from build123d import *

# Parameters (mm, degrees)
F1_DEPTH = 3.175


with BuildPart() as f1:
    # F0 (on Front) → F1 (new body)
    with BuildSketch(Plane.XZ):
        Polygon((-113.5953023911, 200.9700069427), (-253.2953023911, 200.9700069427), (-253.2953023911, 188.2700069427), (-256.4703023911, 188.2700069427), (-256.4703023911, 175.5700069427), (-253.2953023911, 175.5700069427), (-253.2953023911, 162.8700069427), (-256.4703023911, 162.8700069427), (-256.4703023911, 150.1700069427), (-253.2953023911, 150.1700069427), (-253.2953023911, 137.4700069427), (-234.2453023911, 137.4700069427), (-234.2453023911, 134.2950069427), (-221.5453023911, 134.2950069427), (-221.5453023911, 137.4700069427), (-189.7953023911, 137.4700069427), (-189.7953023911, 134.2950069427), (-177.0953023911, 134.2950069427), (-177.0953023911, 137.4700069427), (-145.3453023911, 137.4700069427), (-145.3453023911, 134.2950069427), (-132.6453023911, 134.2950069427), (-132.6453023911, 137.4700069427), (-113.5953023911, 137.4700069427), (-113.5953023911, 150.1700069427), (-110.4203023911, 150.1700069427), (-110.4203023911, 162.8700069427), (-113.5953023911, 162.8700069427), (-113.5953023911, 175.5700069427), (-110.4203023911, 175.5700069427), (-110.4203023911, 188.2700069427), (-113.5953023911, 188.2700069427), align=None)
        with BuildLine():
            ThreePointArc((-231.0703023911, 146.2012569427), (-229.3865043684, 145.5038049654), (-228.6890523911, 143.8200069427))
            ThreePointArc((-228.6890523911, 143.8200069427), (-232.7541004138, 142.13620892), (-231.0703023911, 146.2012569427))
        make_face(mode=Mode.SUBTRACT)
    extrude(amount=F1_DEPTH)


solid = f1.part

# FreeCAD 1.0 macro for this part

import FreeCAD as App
import Part
import Sketcher

V = App.Vector
Q = App.Units.Quantity

doc = App.newDocument("Part")
body = doc.addObject("PartDesign::Body", "Body")

# Sketch on XZ plane
sketch1 = body.newObject("Sketcher::SketchObject", "Sketch")
sketch1.AttachmentSupport = (doc.getObject("XZ_Plane"), [""])
sketch1.MapMode = "FlatFace"
sketch1.addGeometry([
    Part.LineSegment(V(-113.595302, 200.970007, 0), V(-253.295302, 200.970007, 0)),  # 0
    Part.LineSegment(V(-253.295302, 200.970007, 0), V(-253.295302, 188.270007, 0)),  # 1
    Part.LineSegment(V(-253.295302, 188.270007, 0), V(-256.470302, 188.270007, 0)),  # 2
    Part.LineSegment(V(-256.470302, 188.270007, 0), V(-256.470302, 175.570007, 0)),  # 3
    Part.LineSegment(V(-256.470302, 175.570007, 0), V(-253.295302, 175.570007, 0)),  # 4
    Part.LineSegment(V(-253.295302, 175.570007, 0), V(-253.295302, 162.870007, 0)),  # 5
    Part.LineSegment(V(-253.295302, 162.870007, 0), V(-256.470302, 162.870007, 0)),  # 6
    Part.LineSegment(V(-256.470302, 162.870007, 0), V(-256.470302, 150.170007, 0)),  # 7
    Part.LineSegment(V(-256.470302, 150.170007, 0), V(-253.295302, 150.170007, 0)),  # 8
    Part.LineSegment(V(-253.295302, 150.170007, 0), V(-253.295302, 137.470007, 0)),  # 9
    Part.LineSegment(V(-253.295302, 137.470007, 0), V(-234.245302, 137.470007, 0)),  # 10
    Part.LineSegment(V(-234.245302, 137.470007, 0), V(-234.245302, 134.295007, 0)),  # 11
    Part.LineSegment(V(-234.245302, 134.295007, 0), V(-221.545302, 134.295007, 0)),  # 12
    Part.LineSegment(V(-221.545302, 134.295007, 0), V(-221.545302, 137.470007, 0)),  # 13
    Part.LineSegment(V(-221.545302, 137.470007, 0), V(-189.795302, 137.470007, 0)),  # 14
    Part.LineSegment(V(-189.795302, 137.470007, 0), V(-189.795302, 134.295007, 0)),  # 15
    Part.LineSegment(V(-189.795302, 134.295007, 0), V(-177.095302, 134.295007, 0)),  # 16
    Part.LineSegment(V(-177.095302, 134.295007, 0), V(-177.095302, 137.470007, 0)),  # 17
    Part.LineSegment(V(-177.095302, 137.470007, 0), V(-145.345302, 137.470007, 0)),  # 18
    Part.LineSegment(V(-145.345302, 137.470007, 0), V(-145.345302, 134.295007, 0)),  # 19
    Part.LineSegment(V(-145.345302, 134.295007, 0), V(-132.645302, 134.295007, 0)),  # 20
    Part.LineSegment(V(-132.645302, 134.295007, 0), V(-132.645302, 137.470007, 0)),  # 21
    Part.LineSegment(V(-132.645302, 137.470007, 0), V(-113.595302, 137.470007, 0)),  # 22
    Part.LineSegment(V(-113.595302, 137.470007, 0), V(-113.595302, 150.170007, 0)),  # 23
    Part.LineSegment(V(-113.595302, 150.170007, 0), V(-110.420302, 150.170007, 0)),  # 24
    Part.LineSegment(V(-110.420302, 150.170007, 0), V(-110.420302, 162.870007, 0)),  # 25
    Part.LineSegment(V(-110.420302, 162.870007, 0), V(-113.595302, 162.870007, 0)),  # 26
    Part.LineSegment(V(-113.595302, 162.870007, 0), V(-113.595302, 175.570007, 0)),  # 27
    Part.LineSegment(V(-113.595302, 175.570007, 0), V(-110.420302, 175.570007, 0)),  # 28
    Part.LineSegment(V(-110.420302, 175.570007, 0), V(-110.420302, 188.270007, 0)),  # 29
    Part.LineSegment(V(-110.420302, 188.270007, 0), V(-113.595302, 188.270007, 0)),  # 30
    Part.LineSegment(V(-113.595302, 188.270007, 0), V(-113.595302, 200.970007, 0)),  # 31
    Part.Circle(V(-231.070302, 143.820007, 0), V(0, 0, 1), 2.38125),  # 32
], False)
sketch1.addConstraint([
    Sketcher.Constraint("Coincident", 0, 2, 1, 1),
    Sketcher.Constraint("Coincident", 1, 2, 2, 1),
    Sketcher.Constraint("Coincident", 2, 2, 3, 1),
    Sketcher.Constraint("Coincident", 3, 2, 4, 1),
    Sketcher.Constraint("Coincident", 4, 2, 5, 1),
    Sketcher.Constraint("Coincident", 5, 2, 6, 1),
    Sketcher.Constraint("Coincident", 6, 2, 7, 1),
    Sketcher.Constraint("Coincident", 7, 2, 8, 1),
    Sketcher.Constraint("Coincident", 8, 2, 9, 1),
    Sketcher.Constraint("Coincident", 9, 2, 10, 1),
    Sketcher.Constraint("Coincident", 10, 2, 11, 1),
    Sketcher.Constraint("Coincident", 11, 2, 12, 1),
    Sketcher.Constraint("Coincident", 12, 2, 13, 1),
    Sketcher.Constraint("Coincident", 13, 2, 14, 1),
    Sketcher.Constraint("Coincident", 14, 2, 15, 1),
    Sketcher.Constraint("Coincident", 15, 2, 16, 1),
    Sketcher.Constraint("Coincident", 16, 2, 17, 1),
    Sketcher.Constraint("Coincident", 17, 2, 18, 1),
    Sketcher.Constraint("Coincident", 18, 2, 19, 1),
    Sketcher.Constraint("Coincident", 19, 2, 20, 1),
    Sketcher.Constraint("Coincident", 20, 2, 21, 1),
    Sketcher.Constraint("Coincident", 21, 2, 22, 1),
    Sketcher.Constraint("Coincident", 22, 2, 23, 1),
    Sketcher.Constraint("Coincident", 23, 2, 24, 1),
    Sketcher.Constraint("Coincident", 24, 2, 25, 1),
    Sketcher.Constraint("Coincident", 25, 2, 26, 1),
    Sketcher.Constraint("Coincident", 26, 2, 27, 1),
    Sketcher.Constraint("Coincident", 27, 2, 28, 1),
    Sketcher.Constraint("Coincident", 28, 2, 29, 1),
    Sketcher.Constraint("Coincident", 29, 2, 30, 1),
    Sketcher.Constraint("Coincident", 30, 2, 31, 1),
    Sketcher.Constraint("Coincident", 31, 2, 0, 1),
    Sketcher.Constraint("Horizontal", 0),
    Sketcher.Constraint("Vertical", 1),
    Sketcher.Constraint("Horizontal", 2),
    Sketcher.Constraint("Vertical", 3),
    Sketcher.Constraint("Horizontal", 4),
    Sketcher.Constraint("Vertical", 5),
    Sketcher.Constraint("Horizontal", 6),
    Sketcher.Constraint("Vertical", 7),
    Sketcher.Constraint("Horizontal", 8),
    Sketcher.Constraint("Vertical", 9),
    Sketcher.Constraint("Horizontal", 10),
    Sketcher.Constraint("Vertical", 11),
    Sketcher.Constraint("Horizontal", 12),
    Sketcher.Constraint("Vertical", 13),
    Sketcher.Constraint("Horizontal", 14),
    Sketcher.Constraint("Vertical", 15),
    Sketcher.Constraint("Horizontal", 16),
    Sketcher.Constraint("Vertical", 17),
    Sketcher.Constraint("Horizontal", 18),
    Sketcher.Constraint("Vertical", 19),
    Sketcher.Constraint("Horizontal", 20),
    Sketcher.Constraint("Vertical", 21),
    Sketcher.Constraint("Horizontal", 22),
    Sketcher.Constraint("Vertical", 23),
    Sketcher.Constraint("Horizontal", 24),
    Sketcher.Constraint("Vertical", 25),
    Sketcher.Constraint("Horizontal", 26),
    Sketcher.Constraint("Vertical", 27),
    Sketcher.Constraint("Horizontal", 28),
    Sketcher.Constraint("Vertical", 29),
    Sketcher.Constraint("Horizontal", 30),
    Sketcher.Constraint("Vertical", 31),
    Sketcher.Constraint("Horizontal", 10, 2, 13, 2),
    Sketcher.Constraint("Horizontal", 12, 2, 15, 2),
    Sketcher.Constraint("Horizontal", 14, 2, 17, 2),
    Sketcher.Constraint("Horizontal", 16, 2, 19, 2),
    Sketcher.Constraint("Horizontal", 18, 2, 21, 2),
    Sketcher.Constraint("Horizontal", 8, 2, 23, 2),
    Sketcher.Constraint("Horizontal", 6, 2, 25, 2),
    Sketcher.Constraint("Horizontal", 4, 2, 27, 2),
    Sketcher.Constraint("Horizontal", 2, 2, 29, 2),
    Sketcher.Constraint("Vertical", 1, 2, 4, 2),
    Sketcher.Constraint("Vertical", 3, 2, 6, 2),
    Sketcher.Constraint("Vertical", 5, 2, 8, 2),
    Sketcher.Constraint("Vertical", 23, 2, 26, 2),
    Sketcher.Constraint("Vertical", 25, 2, 28, 2),
    Sketcher.Constraint("Vertical", 27, 2, 30, 2),
    Sketcher.Constraint("Equal", 12, 16),
    Sketcher.Constraint("Equal", 14, 18),
    Sketcher.Constraint("Equal", 16, 20),
    Sketcher.Constraint("Equal", 10, 22),
    Sketcher.Constraint("Equal", 8, 24),
    Sketcher.Constraint("Equal", 20, 1),
    Sketcher.Constraint("Equal", 1, 3),
    Sketcher.Constraint("Equal", 3, 5),
    Sketcher.Constraint("Equal", 5, 7),
    Sketcher.Constraint("Equal", 7, 9),
    Sketcher.Constraint("Equal", 30, 11),
    Sketcher.Constraint("Diameter", 32, Q("0.1875 in")),
    Sketcher.Constraint("DistanceX", 0, 2, 0, 1, Q("5.5 in")),
    Sketcher.Constraint("DistanceX", 12, 1, 12, 2, Q("0.5 in")),
    Sketcher.Constraint("DistanceX", 2, 2, 32, 3, Q("1 in")),
    Sketcher.Constraint("DistanceX", 13, 2, 18, 2, Q("3 in")),
    Sketcher.Constraint("DistanceX", 2, 2, 2, 1, Q("0.125 in")),
    Sketcher.Constraint("DistanceY", 32, 3, 0, 2, Q("2.25 in")),
    Sketcher.Constraint("DistanceX", 32, 3, -1, 1, 231.070302),
    Sketcher.Constraint("DistanceY", -1, 1, 32, 3, 143.820007),
])
pad1 = body.newObject("PartDesign::Pad", "Pad")
pad1.Profile = sketch1
pad1.Length = Q("0.125 in")

doc.recompute()
